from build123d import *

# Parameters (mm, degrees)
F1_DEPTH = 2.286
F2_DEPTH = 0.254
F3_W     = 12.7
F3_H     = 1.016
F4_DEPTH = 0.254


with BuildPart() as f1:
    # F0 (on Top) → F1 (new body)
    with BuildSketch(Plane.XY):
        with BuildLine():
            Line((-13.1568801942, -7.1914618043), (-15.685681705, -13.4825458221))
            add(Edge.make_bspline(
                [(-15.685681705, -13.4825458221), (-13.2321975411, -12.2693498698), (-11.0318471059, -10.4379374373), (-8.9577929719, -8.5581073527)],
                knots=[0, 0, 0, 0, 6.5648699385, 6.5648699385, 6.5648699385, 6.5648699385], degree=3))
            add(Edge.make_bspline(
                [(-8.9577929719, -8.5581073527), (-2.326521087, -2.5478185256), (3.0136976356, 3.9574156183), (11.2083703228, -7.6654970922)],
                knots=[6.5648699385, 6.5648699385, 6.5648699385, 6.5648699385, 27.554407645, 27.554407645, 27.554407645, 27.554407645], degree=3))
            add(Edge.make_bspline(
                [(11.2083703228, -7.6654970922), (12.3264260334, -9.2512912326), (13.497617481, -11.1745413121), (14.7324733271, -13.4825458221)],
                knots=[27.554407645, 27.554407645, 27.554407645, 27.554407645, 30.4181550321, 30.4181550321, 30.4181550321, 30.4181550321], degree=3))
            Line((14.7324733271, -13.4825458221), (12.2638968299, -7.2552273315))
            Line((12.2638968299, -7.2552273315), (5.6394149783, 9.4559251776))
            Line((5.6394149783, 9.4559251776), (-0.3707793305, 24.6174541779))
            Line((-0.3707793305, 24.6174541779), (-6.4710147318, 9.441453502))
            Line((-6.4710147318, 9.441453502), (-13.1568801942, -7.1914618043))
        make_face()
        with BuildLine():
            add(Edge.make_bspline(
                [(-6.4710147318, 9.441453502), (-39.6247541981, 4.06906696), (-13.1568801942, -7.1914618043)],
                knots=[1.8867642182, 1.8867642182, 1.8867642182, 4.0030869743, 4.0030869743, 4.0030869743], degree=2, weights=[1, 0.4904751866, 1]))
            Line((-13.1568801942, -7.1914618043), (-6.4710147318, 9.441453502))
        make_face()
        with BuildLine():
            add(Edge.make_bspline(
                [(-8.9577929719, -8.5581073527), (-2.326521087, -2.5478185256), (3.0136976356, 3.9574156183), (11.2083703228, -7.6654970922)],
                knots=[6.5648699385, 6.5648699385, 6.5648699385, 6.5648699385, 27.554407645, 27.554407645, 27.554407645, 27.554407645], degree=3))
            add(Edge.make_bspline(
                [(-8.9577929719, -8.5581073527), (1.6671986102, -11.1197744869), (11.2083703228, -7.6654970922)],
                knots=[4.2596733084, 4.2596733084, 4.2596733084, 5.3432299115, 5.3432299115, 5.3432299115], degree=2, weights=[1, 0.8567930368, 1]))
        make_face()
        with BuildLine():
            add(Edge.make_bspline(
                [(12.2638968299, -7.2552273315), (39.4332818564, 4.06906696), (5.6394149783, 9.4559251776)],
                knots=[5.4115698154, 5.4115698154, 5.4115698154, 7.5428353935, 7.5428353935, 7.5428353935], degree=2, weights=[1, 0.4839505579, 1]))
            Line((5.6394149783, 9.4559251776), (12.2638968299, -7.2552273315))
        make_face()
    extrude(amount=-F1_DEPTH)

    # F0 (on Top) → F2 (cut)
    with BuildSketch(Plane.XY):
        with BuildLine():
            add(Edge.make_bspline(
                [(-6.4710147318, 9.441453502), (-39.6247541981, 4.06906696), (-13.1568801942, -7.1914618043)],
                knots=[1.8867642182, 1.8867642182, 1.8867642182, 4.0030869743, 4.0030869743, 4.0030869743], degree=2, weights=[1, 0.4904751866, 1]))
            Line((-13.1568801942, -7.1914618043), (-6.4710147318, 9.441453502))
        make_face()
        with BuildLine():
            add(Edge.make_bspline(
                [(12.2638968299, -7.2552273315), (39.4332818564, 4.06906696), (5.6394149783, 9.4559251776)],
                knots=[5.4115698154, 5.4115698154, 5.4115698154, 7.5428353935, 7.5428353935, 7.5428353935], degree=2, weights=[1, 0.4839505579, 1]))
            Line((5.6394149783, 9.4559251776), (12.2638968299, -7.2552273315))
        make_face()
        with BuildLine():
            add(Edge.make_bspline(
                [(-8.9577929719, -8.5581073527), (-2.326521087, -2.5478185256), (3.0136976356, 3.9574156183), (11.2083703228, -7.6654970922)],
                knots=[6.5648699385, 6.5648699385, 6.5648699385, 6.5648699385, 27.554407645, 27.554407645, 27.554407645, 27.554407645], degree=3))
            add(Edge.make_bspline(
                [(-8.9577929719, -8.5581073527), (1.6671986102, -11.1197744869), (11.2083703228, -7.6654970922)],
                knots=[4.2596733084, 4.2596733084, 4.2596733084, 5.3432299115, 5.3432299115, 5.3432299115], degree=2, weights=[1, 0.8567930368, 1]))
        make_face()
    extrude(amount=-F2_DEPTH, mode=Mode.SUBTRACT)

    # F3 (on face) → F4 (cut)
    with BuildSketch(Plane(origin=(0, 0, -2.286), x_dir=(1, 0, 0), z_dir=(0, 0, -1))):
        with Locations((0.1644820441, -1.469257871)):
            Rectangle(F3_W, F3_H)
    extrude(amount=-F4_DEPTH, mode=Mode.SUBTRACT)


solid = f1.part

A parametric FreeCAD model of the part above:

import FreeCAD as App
import Part
import Sketcher
Q = App.Units.Quantity


def add_polygon(sketch, points):
    """Adds a closed chain of lines whose ends are joined by coincident constraints."""
    first, n = sketch.GeometryCount, len(points)
    for a, b in zip(points, points[1:] + points[:1]):
        sketch.addGeometry(Part.LineSegment(App.Vector(*a, 0), App.Vector(*b, 0)), False)
    for i in range(n):
        sketch.addConstraint(Sketcher.Constraint("Coincident", first + i, 2, first + (i + 1) % n, 1))

doc = App.newDocument("Part")
params = doc.addObject("Spreadsheet::Sheet", "Params")
for row, (alias, value) in enumerate([
    ("pad1_length", "0.09 in"),
    ("pocket1_length", "0.01 in"),
    ("sketch3_width", "0.5 in"),
    ("sketch3_height", "0.04 in"),
    ("pocket2_length", "0.01 in"),
], start=1):
    params.set(f"A{row}", alias)
    params.set(f"B{row}", "=" + value)
    params.setAlias(f"B{row}", alias)

body = doc.addObject("PartDesign::Body", "Body")

# Sketch on XY plane
sketch1 = doc.addObject("Sketcher::SketchObject", "Sketch")
body.addObject(sketch1)
sketch1.AttachmentSupport = (doc.XY_Plane, [""])
sketch1.MapMode = "FlatFace"
sketch1.addGeometry([
    Part.BSplineCurve([App.Vector(-15.685682, -13.482546, 0), App.Vector(-13.232198, -12.26935, 0), App.Vector(-11.031847, -10.437937, 0), App.Vector(-8.957793, -8.558107, 0)], [4, 4], [0, 6.564869938], False, 3, [1, 1, 1, 1], False),  # 0
    Part.BSplineCurve([App.Vector(-8.957793, -8.558107, 0), App.Vector(1.667199, -11.119774, 0), App.Vector(11.20837, -7.665497, 0)], [3, 3], [4.259673308, 5.343229911], False, 2, [1, 0.856793037, 1], False),  # 1
    Part.BSplineCurve([App.Vector(11.20837, -7.665497, 0), App.Vector(12.326426, -9.251291, 0), App.Vector(13.497617, -11.174541, 0), App.Vector(14.732473, -13.482546, 0)], [4, 4], [27.554407645, 30.418155032], False, 3, [1, 1, 1, 1], False),  # 2
    Part.LineSegment(App.Vector(14.732473, -13.482546, 0), App.Vector(12.263897, -7.255227, 0)),  # 3
    Part.BSplineCurve([App.Vector(12.263897, -7.255227, 0), App.Vector(39.433282, 4.069067, 0), App.Vector(5.639415, 9.455925, 0)], [3, 3], [5.411569815, 7.542835393], False, 2, [1, 0.483950558, 1], False),  # 4
    Part.LineSegment(App.Vector(5.639415, 9.455925, 0), App.Vector(-0.370779, 24.617454, 0)),  # 5
    Part.LineSegment(App.Vector(-0.370779, 24.617454, 0), App.Vector(-6.471015, 9.441454, 0)),  # 6
    Part.BSplineCurve([App.Vector(-6.471015, 9.441454, 0), App.Vector(-39.624754, 4.069067, 0), App.Vector(-13.15688, -7.191462, 0)], [3, 3], [1.886764218, 4.003086974], False, 2, [1, 0.490475187, 1], False),  # 7
    Part.LineSegment(App.Vector(-13.15688, -7.191462, 0), App.Vector(-15.685682, -13.482546, 0)),  # 8
], False)
sketch1.addConstraint([
    Sketcher.Constraint("Block", 0),
    Sketcher.Constraint("Block", 1),
    Sketcher.Constraint("Block", 2),
    Sketcher.Constraint("Block", 4),
    Sketcher.Constraint("Block", 7),
    Sketcher.Constraint("Coincident", 2, 2, 3, 1),
    Sketcher.Constraint("Coincident", 3, 2, 4, 1),
    Sketcher.Constraint("Coincident", 4, 2, 5, 1),
    Sketcher.Constraint("Coincident", 5, 2, 6, 1),
    Sketcher.Constraint("Coincident", 6, 2, 7, 1),
    Sketcher.Constraint("Coincident", 7, 2, 8, 1),
    Sketcher.Constraint("Coincident", 8, 2, 0, 1),
    Sketcher.Constraint("DistanceY", 8, 2, 5, 2, Q("1.5 in")),
    Sketcher.Constraint("DistanceX", 5, 2, -1, 1, Q("0.370779 mm")),
])
pad1 = doc.addObject("PartDesign::Pad", "Pad")
body.addObject(pad1)
pad1.Profile = sketch1
pad1.setExpression("Length", "Params.pad1_length")
pad1.Reversed = True

# Sketch on XY plane
sketch2 = doc.addObject("Sketcher::SketchObject", "Sketch001")
body.addObject(sketch2)
sketch2.AttachmentSupport = (doc.XY_Plane, [""])
sketch2.MapMode = "FlatFace"
sketch2.addGeometry([
    Part.BSplineCurve([App.Vector(-6.471015, 9.441454, 0), App.Vector(-39.624754, 4.069067, 0), App.Vector(-13.15688, -7.191462, 0)], [3, 3], [1.886764218, 4.003086974], False, 2, [1, 0.490475187, 1], False),  # 0
    Part.LineSegment(App.Vector(-13.15688, -7.191462, 0), App.Vector(-6.471015, 9.441454, 0)),  # 1
    Part.BSplineCurve([App.Vector(12.263897, -7.255227, 0), App.Vector(39.433282, 4.069067, 0), App.Vector(5.639415, 9.455925, 0)], [3, 3], [5.411569815, 7.542835393], False, 2, [1, 0.483950558, 1], False),  # 2
    Part.LineSegment(App.Vector(5.639415, 9.455925, 0), App.Vector(12.263897, -7.255227, 0)),  # 3
    Part.BSplineCurve([App.Vector(-8.957793, -8.558107, 0), App.Vector(-2.326521, -2.547819, 0), App.Vector(3.013698, 3.957416, 0), App.Vector(11.20837, -7.665497, 0)], [4, 4], [6.564869939, 27.554407645], False, 3, [1, 1, 1, 1], False),  # 4
    Part.BSplineCurve([App.Vector(-8.957793, -8.558107, 0), App.Vector(1.667199, -11.119774, 0), App.Vector(11.20837, -7.665497, 0)], [3, 3], [4.259673308, 5.343229911], False, 2, [1, 0.856793037, 1], False),  # 5
], False)
sketch2.addConstraint([
    Sketcher.Constraint("Block", 0),
    Sketcher.Constraint("Block", 2),
    Sketcher.Constraint("Block", 4),
    Sketcher.Constraint("Block", 5),
    Sketcher.Constraint("Coincident", 0, 1, 1, 2),
    Sketcher.Constraint("Coincident", 1, 1, 0, 2),
    Sketcher.Constraint("Coincident", 2, 1, 3, 2),
    Sketcher.Constraint("Coincident", 3, 1, 2, 2),
])
pocket1 = doc.addObject("PartDesign::Pocket", "Pocket")
body.addObject(pocket1)
pocket1.Profile = sketch2
pocket1.setExpression("Length", "Params.pocket1_length")

# Sketch on XY plane
sketch3 = doc.addObject("Sketcher::SketchObject", "Sketch002")
body.addObject(sketch3)
sketch3.AttachmentSupport = (doc.XY_Plane, [""])
sketch3.MapMode = "FlatFace"
sketch3.AttachmentOffset = App.Placement(App.Vector(0, 0, -0.09 * 25.4), App.Rotation())
add_polygon(sketch3, [(-6.2, 1), (-6.2, 2), (6.5, 2), (6.5, 1)])  # lines 0-3
sketch3.addConstraint([
    Sketcher.Constraint("Vertical", 0),
    Sketcher.Constraint("Horizontal", 1),
    Sketcher.Constraint("Vertical", 2),
    Sketcher.Constraint("Horizontal", 3),
    Sketcher.Constraint("DistanceX", 1, 1, 1, 2, Q("0.5 in")),
    Sketcher.Constraint("DistanceY", 0, 1, 0, 2, Q("0.04 in")),
    Sketcher.Constraint("DistanceX", 0, 2, -1, 1, Q("6.185518 mm")),
    Sketcher.Constraint("DistanceY", -1, 1, 0, 2, Q("1.977258 mm")),
])
sketch3.setExpression("Constraints[8]", "Params.sketch3_width")
sketch3.setExpression("Constraints[9]", "Params.sketch3_height")
pocket2 = doc.addObject("PartDesign::Pocket", "Pocket001")
body.addObject(pocket2)
pocket2.Profile = sketch3
pocket2.setExpression("Length", "Params.pocket2_length")
pocket2.Reversed = True

doc.recompute()
